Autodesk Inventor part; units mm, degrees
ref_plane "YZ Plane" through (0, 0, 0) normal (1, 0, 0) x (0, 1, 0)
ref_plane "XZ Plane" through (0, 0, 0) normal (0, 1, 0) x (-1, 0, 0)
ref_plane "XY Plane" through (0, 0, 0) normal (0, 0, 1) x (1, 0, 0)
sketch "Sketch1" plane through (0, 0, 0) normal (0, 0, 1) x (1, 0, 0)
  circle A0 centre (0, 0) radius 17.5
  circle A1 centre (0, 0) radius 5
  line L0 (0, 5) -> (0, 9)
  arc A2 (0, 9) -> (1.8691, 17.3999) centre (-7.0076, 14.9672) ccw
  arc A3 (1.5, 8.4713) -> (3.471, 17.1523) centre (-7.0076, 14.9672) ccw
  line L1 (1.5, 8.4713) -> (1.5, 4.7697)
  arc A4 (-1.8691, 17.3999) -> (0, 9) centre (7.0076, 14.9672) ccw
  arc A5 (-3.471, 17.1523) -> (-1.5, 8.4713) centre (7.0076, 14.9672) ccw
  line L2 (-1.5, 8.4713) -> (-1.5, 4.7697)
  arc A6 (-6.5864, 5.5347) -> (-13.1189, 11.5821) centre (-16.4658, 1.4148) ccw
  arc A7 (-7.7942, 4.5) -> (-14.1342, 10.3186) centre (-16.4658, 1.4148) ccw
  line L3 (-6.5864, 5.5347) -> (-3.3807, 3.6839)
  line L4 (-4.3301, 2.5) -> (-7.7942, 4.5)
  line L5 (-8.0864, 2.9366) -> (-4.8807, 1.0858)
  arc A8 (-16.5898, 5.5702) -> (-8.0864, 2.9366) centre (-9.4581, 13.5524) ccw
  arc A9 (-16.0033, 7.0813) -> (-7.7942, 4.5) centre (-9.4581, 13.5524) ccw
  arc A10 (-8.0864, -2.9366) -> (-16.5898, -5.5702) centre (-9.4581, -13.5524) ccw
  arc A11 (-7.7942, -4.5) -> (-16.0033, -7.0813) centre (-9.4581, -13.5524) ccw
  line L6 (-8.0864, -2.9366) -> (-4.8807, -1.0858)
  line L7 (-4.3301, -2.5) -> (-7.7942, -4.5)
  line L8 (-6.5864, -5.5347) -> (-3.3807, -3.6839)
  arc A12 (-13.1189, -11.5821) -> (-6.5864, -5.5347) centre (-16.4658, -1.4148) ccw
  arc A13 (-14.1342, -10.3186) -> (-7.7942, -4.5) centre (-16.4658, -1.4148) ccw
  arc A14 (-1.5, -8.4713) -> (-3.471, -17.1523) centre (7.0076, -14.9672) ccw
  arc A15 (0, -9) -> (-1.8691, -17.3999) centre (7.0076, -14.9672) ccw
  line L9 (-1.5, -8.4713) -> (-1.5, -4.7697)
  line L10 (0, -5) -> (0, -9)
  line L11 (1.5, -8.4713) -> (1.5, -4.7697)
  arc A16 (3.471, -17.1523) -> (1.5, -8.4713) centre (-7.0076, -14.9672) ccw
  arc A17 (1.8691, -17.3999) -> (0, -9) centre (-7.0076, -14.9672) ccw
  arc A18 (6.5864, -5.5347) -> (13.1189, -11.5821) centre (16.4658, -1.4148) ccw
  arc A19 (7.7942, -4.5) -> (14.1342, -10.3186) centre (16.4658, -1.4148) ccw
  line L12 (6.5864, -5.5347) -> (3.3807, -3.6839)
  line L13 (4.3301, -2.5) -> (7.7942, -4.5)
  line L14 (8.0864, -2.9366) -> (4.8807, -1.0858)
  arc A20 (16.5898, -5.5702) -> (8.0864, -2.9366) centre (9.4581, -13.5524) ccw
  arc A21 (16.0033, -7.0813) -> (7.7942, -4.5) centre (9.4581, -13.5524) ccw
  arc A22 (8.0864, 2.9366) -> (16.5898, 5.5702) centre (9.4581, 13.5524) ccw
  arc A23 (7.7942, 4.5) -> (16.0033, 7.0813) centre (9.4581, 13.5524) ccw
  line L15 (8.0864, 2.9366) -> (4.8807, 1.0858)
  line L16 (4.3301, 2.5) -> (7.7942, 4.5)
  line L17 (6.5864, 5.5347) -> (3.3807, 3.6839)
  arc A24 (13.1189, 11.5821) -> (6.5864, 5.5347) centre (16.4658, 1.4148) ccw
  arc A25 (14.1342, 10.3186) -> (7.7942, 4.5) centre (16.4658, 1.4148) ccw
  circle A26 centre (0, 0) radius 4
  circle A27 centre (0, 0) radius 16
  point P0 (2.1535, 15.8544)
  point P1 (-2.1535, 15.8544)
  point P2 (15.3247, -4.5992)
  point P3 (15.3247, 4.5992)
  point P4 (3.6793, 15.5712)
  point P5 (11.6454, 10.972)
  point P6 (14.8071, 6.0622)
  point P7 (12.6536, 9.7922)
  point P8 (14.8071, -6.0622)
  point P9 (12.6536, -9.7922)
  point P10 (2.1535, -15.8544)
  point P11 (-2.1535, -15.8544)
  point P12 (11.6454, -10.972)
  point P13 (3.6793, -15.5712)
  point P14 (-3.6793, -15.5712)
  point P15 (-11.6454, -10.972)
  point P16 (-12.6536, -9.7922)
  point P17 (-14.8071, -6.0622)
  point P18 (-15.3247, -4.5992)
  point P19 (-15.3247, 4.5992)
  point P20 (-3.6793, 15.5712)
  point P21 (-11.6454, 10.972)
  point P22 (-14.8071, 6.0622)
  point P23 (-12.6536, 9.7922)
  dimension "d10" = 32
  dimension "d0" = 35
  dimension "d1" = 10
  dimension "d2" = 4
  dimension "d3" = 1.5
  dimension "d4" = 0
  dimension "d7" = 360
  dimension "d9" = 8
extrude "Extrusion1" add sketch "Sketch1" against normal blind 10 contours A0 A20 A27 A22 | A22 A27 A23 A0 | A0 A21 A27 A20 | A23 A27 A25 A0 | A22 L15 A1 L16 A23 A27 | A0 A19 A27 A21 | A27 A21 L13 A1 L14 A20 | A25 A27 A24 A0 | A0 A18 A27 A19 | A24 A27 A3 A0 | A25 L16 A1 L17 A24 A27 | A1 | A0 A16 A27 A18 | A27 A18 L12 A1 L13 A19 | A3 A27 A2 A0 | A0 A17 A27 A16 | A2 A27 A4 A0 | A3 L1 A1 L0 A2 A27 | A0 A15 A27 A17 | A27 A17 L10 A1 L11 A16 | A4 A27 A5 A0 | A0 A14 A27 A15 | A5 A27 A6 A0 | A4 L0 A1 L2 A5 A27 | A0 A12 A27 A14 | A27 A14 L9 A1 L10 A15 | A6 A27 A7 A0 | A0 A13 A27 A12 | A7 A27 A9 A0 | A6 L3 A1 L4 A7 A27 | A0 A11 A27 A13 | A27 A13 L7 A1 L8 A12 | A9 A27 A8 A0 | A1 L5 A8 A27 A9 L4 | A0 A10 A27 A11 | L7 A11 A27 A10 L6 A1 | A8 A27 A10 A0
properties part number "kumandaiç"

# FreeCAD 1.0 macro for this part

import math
import FreeCAD as App
import Part
import Sketcher
from FreeCAD import Vector
Q = App.Units.Quantity

doc = App.newDocument("Part")
params = doc.addObject("Spreadsheet::Sheet", "Params")
for row, (alias, value) in enumerate([
    ("sketch1_diameter", "35 mm"),
    ("sketch1_diameter2", "8 mm"),
    ("sketch1_radius", "5 mm"),
    ("sketch1_radius2", "16 mm"),
    ("pad1_length", "10 mm"),
], start=1):
    params.set(f"A{row}", alias)
    params.set(f"B{row}", "=" + value)
    params.setAlias(f"B{row}", alias)

body = doc.addObject("PartDesign::Body", "Body")

sketch1 = body.newObject("Sketcher::SketchObject", "Sketch")
sketch1.AttachmentSupport = (doc.getObject("XY_Plane"), [""])
sketch1.MapMode = "FlatFace"
sketch1.addGeometry(Part.Circle(Vector(0, 0, 0), Vector(0, 0, 1), 17.5), False)
sketch1.addGeometry(Part.ArcOfCircle(Part.Circle(Vector(9.4581, -13.5524, 0), Vector(0, 0, 1), 10.704049), math.radians(56.764936), math.radians(97.362569)), False)
sketch1.addGeometry(Part.LineSegment(Vector(8.0864, -2.9366, 0), Vector(4.8807, -1.0858, 0)), False)
sketch1.addGeometry(Part.ArcOfCircle(Part.Circle(Vector(0, 0, 0), Vector(0, 0, 1), 5), math.radians(-12.542231), math.radians(12.542231)), False)
sketch1.addGeometry(Part.LineSegment(Vector(4.8807, 1.0858, 0), Vector(8.0864, 2.9366, 0)), False)
sketch1.addGeometry(Part.ArcOfCircle(Part.Circle(Vector(9.4581, 13.5524, 0), Vector(0, 0, 1), 10.704054), math.radians(-97.362569), math.radians(-56.764941)), False)
sketch1.addGeometry(Part.ArcOfCircle(Part.Circle(Vector(0, 0, 0), Vector(0, 0, 1), 16), math.radians(-16.705439), math.radians(16.705428)), False)
sketch1.addGeometry(Part.ArcOfCircle(Part.Circle(Vector(0, 0, 0), Vector(0, 0, 1), 16), math.radians(-37.735278), math.radians(-22.264772)), False)
sketch1.addGeometry(Part.ArcOfCircle(Part.Circle(Vector(16.4658, -1.4148, 0), Vector(0, 0, 1), 9.204081), math.radians(-160.415352), math.radians(-114.468491)), False)
sketch1.addGeometry(Part.ArcOfCircle(Part.Circle(Vector(9.4581, -13.5524, 0), Vector(0, 0, 1), 9.204063), math.radians(54.4682), math.radians(100.415146)), False)
sketch1.addGeometry(Part.ArcOfCircle(Part.Circle(Vector(9.4581, 13.5524, 0), Vector(0, 0, 1), 9.204049), math.radians(-100.415146), math.radians(-54.468188)), False)
sketch1.addGeometry(Part.ArcOfCircle(Part.Circle(Vector(16.4658, 1.4148, 0), Vector(0, 0, 1), 9.204022), math.radians(114.468441), math.radians(160.415352)), False)
sketch1.addGeometry(Part.ArcOfCircle(Part.Circle(Vector(0, 0, 0), Vector(0, 0, 1), 16), math.radians(22.264803), math.radians(37.735153)), False)
sketch1.addGeometry(Part.ArcOfCircle(Part.Circle(Vector(16.4658, -1.4148, 0), Vector(0, 0, 1), 10.704024), math.radians(-157.362924), math.radians(-116.765165)), False)
sketch1.addGeometry(Part.ArcOfCircle(Part.Circle(Vector(0, 0, 0), Vector(0, 0, 1), 16), math.radians(-76.705325), math.radians(-43.294536)), False)
sketch1.addGeometry(Part.ArcOfCircle(Part.Circle(Vector(-7.0076, -14.9672, 0), Vector(0, 0, 1), 10.704005), math.radians(-3.234796), math.radians(37.363212)), False)
sketch1.addGeometry(Part.LineSegment(Vector(1.5, -8.4713, 0), Vector(1.5, -4.7697, 0)), False)
sketch1.addGeometry(Part.ArcOfCircle(Part.Circle(Vector(0, 0, 0), Vector(0, 0, 1), 5), math.radians(-72.542411), math.radians(-47.457524)), False)
sketch1.addGeometry(Part.LineSegment(Vector(3.3807, -3.6839, 0), Vector(6.5864, -5.5347, 0)), False)
sketch1.addGeometry(Part.Circle(Vector(0, 0, 0), Vector(0, 0, 1), 4), False)
sketch1.addGeometry(Part.ArcOfCircle(Part.Circle(Vector(0, 0, 0), Vector(0, 0, 1), 5), math.radians(-132.542476), math.radians(-107.457589)), False)
sketch1.addGeometry(Part.LineSegment(Vector(-1.5, -4.7697, 0), Vector(-1.5, -8.4713, 0)), False)
sketch1.addGeometry(Part.ArcOfCircle(Part.Circle(Vector(7.0076, -14.9672, 0), Vector(0, 0, 1), 10.704017), math.radians(142.636788), math.radians(183.234786)), False)
sketch1.addGeometry(Part.ArcOfCircle(Part.Circle(Vector(0, 0, 0), Vector(0, 0, 1), 16), math.radians(-136.705503), math.radians(-103.2947)), False)
sketch1.addGeometry(Part.ArcOfCircle(Part.Circle(Vector(-16.4658, -1.4148, 0), Vector(0, 0, 1), 10.704005), math.radians(-63.234852), math.radians(-22.637076)), False)
sketch1.addGeometry(Part.LineSegment(Vector(-6.5864, -5.5347, 0), Vector(-3.3807, -3.6839, 0)), False)
sketch1.addGeometry(Part.ArcOfCircle(Part.Circle(Vector(0, 0, 0), Vector(0, 0, 1), 5), math.radians(167.457769), math.radians(192.542231)), False)
sketch1.addGeometry(Part.LineSegment(Vector(-4.8807, -1.0858, 0), Vector(-8.0864, -2.9366, 0)), False)
sketch1.addGeometry(Part.ArcOfCircle(Part.Circle(Vector(-9.4581, -13.5524, 0), Vector(0, 0, 1), 10.704054), math.radians(82.637431), math.radians(123.235059)), False)
sketch1.addGeometry(Part.ArcOfCircle(Part.Circle(Vector(0, 0, 0), Vector(0, 0, 1), 16), math.radians(163.294561), math.radians(196.705428)), False)
sketch1.addGeometry(Part.ArcOfCircle(Part.Circle(Vector(-9.4581, 13.5524, 0), Vector(0, 0, 1), 10.704049), math.radians(-123.235064), math.radians(-82.637431)), False)
sketch1.addGeometry(Part.LineSegment(Vector(-8.0864, 2.9366, 0), Vector(-4.8807, 1.0858, 0)), False)
sketch1.addGeometry(Part.ArcOfCircle(Part.Circle(Vector(0, 0, 0), Vector(0, 0, 1), 5), math.radians(107.457589), math.radians(132.542476)), False)
sketch1.addGeometry(Part.LineSegment(Vector(-3.3807, 3.6839, 0), Vector(-6.5864, 5.5347, 0)), False)
sketch1.addGeometry(Part.ArcOfCircle(Part.Circle(Vector(-16.4658, 1.4148, 0), Vector(0, 0, 1), 10.704024), math.radians(22.637076), math.radians(63.234835)), False)
sketch1.addGeometry(Part.ArcOfCircle(Part.Circle(Vector(0, 0, 0), Vector(0, 0, 1), 16), math.radians(103.294675), math.radians(136.705464)), False)
sketch1.addGeometry(Part.ArcOfCircle(Part.Circle(Vector(7.0076, 14.9672, 0), Vector(0, 0, 1), 10.704005), math.radians(176.765204), math.radians(217.363212)), False)
sketch1.addGeometry(Part.LineSegment(Vector(-1.5, 8.4713, 0), Vector(-1.5, 4.7697, 0)), False)
sketch1.addGeometry(Part.ArcOfCircle(Part.Circle(Vector(0, 0, 0), Vector(0, 0, 1), 5), math.radians(47.457524), math.radians(72.542411)), False)
sketch1.addGeometry(Part.LineSegment(Vector(1.5, 4.7697, 0), Vector(1.5, 8.4713, 0)), False)
sketch1.addGeometry(Part.ArcOfCircle(Part.Circle(Vector(-7.0076, 14.9672, 0), Vector(0, 0, 1), 10.704017), math.radians(-37.363212), math.radians(3.234786)), False)
sketch1.addGeometry(Part.ArcOfCircle(Part.Circle(Vector(0, 0, 0), Vector(0, 0, 1), 16), math.radians(43.294497), math.radians(76.7053)), False)
sketch1.addGeometry(Part.ArcOfCircle(Part.Circle(Vector(16.4658, 1.4148, 0), Vector(0, 0, 1), 10.704005), math.radians(116.765148), math.radians(157.362924)), False)
sketch1.addGeometry(Part.LineSegment(Vector(6.5864, 5.5347, 0), Vector(3.3807, 3.6839, 0)), False)
sketch1.addGeometry(Part.ArcOfCircle(Part.Circle(Vector(-7.0076, -14.9672, 0), Vector(0, 0, 1), 9.204012), math.radians(-5.53153), math.radians(40.415478)), False)
sketch1.addGeometry(Part.ArcOfCircle(Part.Circle(Vector(0, 0, 0), Vector(0, 0, 1), 16), math.radians(-97.735324), math.radians(-82.264687)), False)
sketch1.addGeometry(Part.ArcOfCircle(Part.Circle(Vector(7.0076, -14.9672, 0), Vector(0, 0, 1), 9.204017), math.radians(139.584522), math.radians(185.531525)), False)
sketch1.addGeometry(Part.ArcOfCircle(Part.Circle(Vector(-16.4658, -1.4148, 0), Vector(0, 0, 1), 9.204022), math.radians(-65.531559), math.radians(-19.584648)), False)
sketch1.addGeometry(Part.ArcOfCircle(Part.Circle(Vector(0, 0, 0), Vector(0, 0, 1), 16), math.radians(-157.735197), math.radians(-142.264847)), False)
sketch1.addGeometry(Part.ArcOfCircle(Part.Circle(Vector(-9.4581, -13.5524, 0), Vector(0, 0, 1), 9.204049), math.radians(79.584854), math.radians(125.531812)), False)
sketch1.addGeometry(Part.ArcOfCircle(Part.Circle(Vector(-9.4581, 13.5524, 0), Vector(0, 0, 1), 9.204063), math.radians(-125.5318), math.radians(-79.584854)), False)
sketch1.addGeometry(Part.ArcOfCircle(Part.Circle(Vector(0, 0, 0), Vector(0, 0, 1), 16), math.radians(142.264722), math.radians(157.735228)), False)
sketch1.addGeometry(Part.ArcOfCircle(Part.Circle(Vector(-16.4658, 1.4148, 0), Vector(0, 0, 1), 9.204081), math.radians(19.584648), math.radians(65.531509)), False)
sketch1.addGeometry(Part.ArcOfCircle(Part.Circle(Vector(7.0076, 14.9672, 0), Vector(0, 0, 1), 9.204012), math.radians(174.46847), math.radians(220.415478)), False)
sketch1.addGeometry(Part.ArcOfCircle(Part.Circle(Vector(0, 0, 0), Vector(0, 0, 1), 16), math.radians(82.264676), math.radians(97.735313)), False)
sketch1.addGeometry(Part.ArcOfCircle(Part.Circle(Vector(-7.0076, 14.9672, 0), Vector(0, 0, 1), 9.204017), math.radians(-40.415478), math.radians(5.531525)), False)
sketch1.addConstraint(Sketcher.Constraint("Coincident", 1, 2, 2, 1))
sketch1.addConstraint(Sketcher.Constraint("Coincident", 2, 2, 3, 1))
sketch1.addConstraint(Sketcher.Constraint("Coincident", 3, 2, 4, 1))
sketch1.addConstraint(Sketcher.Constraint("Coincident", 4, 2, 5, 1))
sketch1.addConstraint(Sketcher.Constraint("Coincident", 5, 2, 6, 2))
sketch1.addConstraint(Sketcher.Constraint("Coincident", 6, 1, 1, 1))
sketch1.addConstraint(Sketcher.Constraint("Coincident", 7, 1, 8, 2))
sketch1.addConstraint(Sketcher.Constraint("Coincident", 8, 1, 9, 2))
sketch1.addConstraint(Sketcher.Constraint("Coincident", 9, 1, 7, 2))
sketch1.addConstraint(Sketcher.Constraint("Coincident", 10, 1, 11, 2))
sketch1.addConstraint(Sketcher.Constraint("Coincident", 11, 1, 12, 2))
sketch1.addConstraint(Sketcher.Constraint("Coincident", 12, 1, 10, 2))
sketch1.addConstraint(Sketcher.Constraint("Coincident", 13, 2, 14, 2))
sketch1.addConstraint(Sketcher.Constraint("Coincident", 14, 1, 15, 1))
sketch1.addConstraint(Sketcher.Constraint("Coincident", 15, 2, 16, 1))
sketch1.addConstraint(Sketcher.Constraint("Coincident", 16, 2, 17, 1))
sketch1.addConstraint(Sketcher.Constraint("Coincident", 17, 2, 18, 1))
sketch1.addConstraint(Sketcher.Constraint("Coincident", 18, 2, 13, 1))
sketch1.addConstraint(Sketcher.Constraint("Coincident", 20, 2, 21, 1))
sketch1.addConstraint(Sketcher.Constraint("Coincident", 21, 2, 22, 1))
sketch1.addConstraint(Sketcher.Constraint("Coincident", 22, 2, 23, 2))
sketch1.addConstraint(Sketcher.Constraint("Coincident", 23, 1, 24, 1))
sketch1.addConstraint(Sketcher.Constraint("Coincident", 24, 2, 25, 1))
sketch1.addConstraint(Sketcher.Constraint("Coincident", 25, 2, 20, 1))
sketch1.addConstraint(Sketcher.Constraint("Coincident", 26, 2, 27, 1))
sketch1.addConstraint(Sketcher.Constraint("Coincident", 27, 2, 28, 1))
sketch1.addConstraint(Sketcher.Constraint("Coincident", 28, 2, 29, 2))
sketch1.addConstraint(Sketcher.Constraint("Coincident", 29, 1, 30, 1))
sketch1.addConstraint(Sketcher.Constraint("Coincident", 30, 2, 31, 1))
sketch1.addConstraint(Sketcher.Constraint("Coincident", 31, 2, 26, 1))
sketch1.addConstraint(Sketcher.Constraint("Coincident", 32, 2, 33, 1))
sketch1.addConstraint(Sketcher.Constraint("Coincident", 33, 2, 34, 1))
sketch1.addConstraint(Sketcher.Constraint("Coincident", 34, 2, 35, 2))
sketch1.addConstraint(Sketcher.Constraint("Coincident", 35, 1, 36, 1))
sketch1.addConstraint(Sketcher.Constraint("Coincident", 36, 2, 37, 1))
sketch1.addConstraint(Sketcher.Constraint("Coincident", 37, 2, 32, 1))
sketch1.addConstraint(Sketcher.Constraint("Coincident", 38, 2, 39, 1))
sketch1.addConstraint(Sketcher.Constraint("Coincident", 39, 2, 40, 1))
sketch1.addConstraint(Sketcher.Constraint("Coincident", 40, 2, 41, 2))
sketch1.addConstraint(Sketcher.Constraint("Coincident", 41, 1, 42, 1))
sketch1.addConstraint(Sketcher.Constraint("Coincident", 42, 2, 43, 1))
sketch1.addConstraint(Sketcher.Constraint("Coincident", 43, 2, 38, 1))
sketch1.addConstraint(Sketcher.Constraint("Coincident", 44, 1, 45, 2))
sketch1.addConstraint(Sketcher.Constraint("Coincident", 45, 1, 46, 2))
sketch1.addConstraint(Sketcher.Constraint("Coincident", 46, 1, 44, 2))
sketch1.addConstraint(Sketcher.Constraint("Coincident", 47, 1, 48, 2))
sketch1.addConstraint(Sketcher.Constraint("Coincident", 48, 1, 49, 2))
sketch1.addConstraint(Sketcher.Constraint("Coincident", 49, 1, 47, 2))
sketch1.addConstraint(Sketcher.Constraint("Coincident", 50, 1, 51, 2))
sketch1.addConstraint(Sketcher.Constraint("Coincident", 51, 1, 52, 2))
sketch1.addConstraint(Sketcher.Constraint("Coincident", 52, 1, 50, 2))
sketch1.addConstraint(Sketcher.Constraint("Coincident", 53, 1, 54, 2))
sketch1.addConstraint(Sketcher.Constraint("Coincident", 54, 1, 55, 2))
sketch1.addConstraint(Sketcher.Constraint("Coincident", 55, 1, 53, 2))
sketch1.addConstraint(Sketcher.Constraint("Vertical", 16))
sketch1.addConstraint(Sketcher.Constraint("Vertical", 21))
sketch1.addConstraint(Sketcher.Constraint("Vertical", 37))
sketch1.addConstraint(Sketcher.Constraint("Vertical", 39))
sketch1.addConstraint(Sketcher.Constraint("Coincident", 0, 3, -1, 1))
sketch1.addConstraint(Sketcher.Constraint("Coincident", 3, 3, -1, 1))
sketch1.addConstraint(Sketcher.Constraint("Coincident", 6, 3, -1, 1))
sketch1.addConstraint(Sketcher.Constraint("Coincident", 7, 3, -1, 1))
sketch1.addConstraint(Sketcher.Constraint("Coincident", 12, 3, -1, 1))
sketch1.addConstraint(Sketcher.Constraint("Coincident", 14, 3, -1, 1))
sketch1.addConstraint(Sketcher.Constraint("Coincident", 17, 3, -1, 1))
sketch1.addConstraint(Sketcher.Constraint("Coincident", 19, 3, -1, 1))
sketch1.addConstraint(Sketcher.Constraint("Coincident", 20, 3, -1, 1))
sketch1.addConstraint(Sketcher.Constraint("Coincident", 23, 3, -1, 1))
sketch1.addConstraint(Sketcher.Constraint("Coincident", 26, 3, -1, 1))
sketch1.addConstraint(Sketcher.Constraint("Coincident", 29, 3, -1, 1))
sketch1.addConstraint(Sketcher.Constraint("Coincident", 32, 3, -1, 1))
sketch1.addConstraint(Sketcher.Constraint("Coincident", 35, 3, -1, 1))
sketch1.addConstraint(Sketcher.Constraint("Coincident", 38, 3, -1, 1))
sketch1.addConstraint(Sketcher.Constraint("Coincident", 41, 3, -1, 1))
sketch1.addConstraint(Sketcher.Constraint("Coincident", 45, 3, -1, 1))
sketch1.addConstraint(Sketcher.Constraint("Coincident", 48, 3, -1, 1))
sketch1.addConstraint(Sketcher.Constraint("Coincident", 51, 3, -1, 1))
sketch1.addConstraint(Sketcher.Constraint("Coincident", 54, 3, -1, 1))
sketch1.addConstraint(Sketcher.Constraint("Coincident", 9, 3, 1, 3))
sketch1.addConstraint(Sketcher.Constraint("Coincident", 10, 3, 5, 3))
sketch1.addConstraint(Sketcher.Constraint("Coincident", 13, 3, 8, 3))
sketch1.addConstraint(Sketcher.Constraint("Coincident", 42, 3, 11, 3))
sketch1.addConstraint(Sketcher.Constraint("Coincident", 44, 3, 15, 3))
sketch1.addConstraint(Sketcher.Constraint("Coincident", 46, 3, 22, 3))
sketch1.addConstraint(Sketcher.Constraint("Coincident", 47, 3, 24, 3))
sketch1.addConstraint(Sketcher.Constraint("Coincident", 49, 3, 28, 3))
sketch1.addConstraint(Sketcher.Constraint("Coincident", 50, 3, 30, 3))
sketch1.addConstraint(Sketcher.Constraint("Coincident", 52, 3, 34, 3))
sketch1.addConstraint(Sketcher.Constraint("Coincident", 53, 3, 36, 3))
sketch1.addConstraint(Sketcher.Constraint("Coincident", 55, 3, 40, 3))
sketch1.addConstraint(Sketcher.Constraint("Equal", 1, 5))
sketch1.addConstraint(Sketcher.Constraint("Equal", 6, 7))
sketch1.addConstraint(Sketcher.Constraint("Equal", 8, 9))
sketch1.addConstraint(Sketcher.Constraint("Equal", 9, 10))
sketch1.addConstraint(Sketcher.Constraint("Equal", 10, 11))
sketch1.addConstraint(Sketcher.Constraint("Equal", 7, 12))
sketch1.addConstraint(Sketcher.Constraint("Equal", 5, 13))
sketch1.addConstraint(Sketcher.Constraint("Equal", 12, 14))
sketch1.addConstraint(Sketcher.Constraint("Equal", 13, 15))
sketch1.addConstraint(Sketcher.Constraint("Equal", 3, 17))
sketch1.addConstraint(Sketcher.Constraint("Equal", 17, 20))
sketch1.addConstraint(Sketcher.Constraint("Equal", 15, 22))
sketch1.addConstraint(Sketcher.Constraint("Equal", 14, 23))
sketch1.addConstraint(Sketcher.Constraint("Equal", 22, 24))
sketch1.addConstraint(Sketcher.Constraint("Equal", 20, 26))
sketch1.addConstraint(Sketcher.Constraint("Equal", 24, 28))
sketch1.addConstraint(Sketcher.Constraint("Equal", 23, 29))
sketch1.addConstraint(Sketcher.Constraint("Equal", 28, 30))
sketch1.addConstraint(Sketcher.Constraint("Equal", 26, 32))
sketch1.addConstraint(Sketcher.Constraint("Equal", 30, 34))
sketch1.addConstraint(Sketcher.Constraint("Equal", 29, 35))
sketch1.addConstraint(Sketcher.Constraint("Equal", 34, 36))
sketch1.addConstraint(Sketcher.Constraint("Equal", 32, 38))
sketch1.addConstraint(Sketcher.Constraint("Equal", 36, 40))
sketch1.addConstraint(Sketcher.Constraint("Equal", 35, 41))
sketch1.addConstraint(Sketcher.Constraint("Equal", 40, 42))
sketch1.addConstraint(Sketcher.Constraint("Equal", 11, 44))
sketch1.addConstraint(Sketcher.Constraint("Equal", 41, 45))
sketch1.addConstraint(Sketcher.Constraint("Equal", 44, 46))
sketch1.addConstraint(Sketcher.Constraint("Equal", 46, 47))
sketch1.addConstraint(Sketcher.Constraint("Equal", 45, 48))
sketch1.addConstraint(Sketcher.Constraint("Equal", 47, 49))
sketch1.addConstraint(Sketcher.Constraint("Equal", 49, 50))
sketch1.addConstraint(Sketcher.Constraint("Equal", 48, 51))
sketch1.addConstraint(Sketcher.Constraint("Equal", 50, 52))
sketch1.addConstraint(Sketcher.Constraint("Equal", 52, 53))
sketch1.addConstraint(Sketcher.Constraint("Equal", 51, 54))
sketch1.addConstraint(Sketcher.Constraint("Equal", 53, 55))
sketch1.addConstraint(Sketcher.Constraint("Symmetric", 11, 3, 24, 3, -1, 1))
sketch1.addConstraint(Sketcher.Constraint("Symmetric", 5, 3, 28, 3, -1, 1))
sketch1.addConstraint(Sketcher.Constraint("Symmetric", 1, 3, 30, 3, -1, 1))
sketch1.addConstraint(Sketcher.Constraint("Symmetric", 8, 3, 34, 3, -1, 1))
sketch1.addConstraint(Sketcher.Constraint("Symmetric", 15, 3, 36, 3, -1, 1))
sketch1.addConstraint(Sketcher.Constraint("Symmetric", 22, 3, 40, 3, -1, 1))
sketch1.addConstraint(Sketcher.Constraint("Symmetric", 15, 3, 22, 3, -2))
sketch1.addConstraint(Sketcher.Constraint("Symmetric", 8, 3, 24, 3, -2))
sketch1.addConstraint(Sketcher.Constraint("Symmetric", 1, 3, 28, 3, -2))
sketch1.addConstraint(Sketcher.Constraint("Parallel", 2, 18))
sketch1.addConstraint(Sketcher.Constraint("Parallel", 4, 25))
sketch1.addConstraint(Sketcher.Constraint("Parallel", 25, 27))
sketch1.addConstraint(Sketcher.Constraint("Parallel", 18, 31))
sketch1.addConstraint(Sketcher.Constraint("Parallel", 31, 33))
sketch1.addConstraint(Sketcher.Constraint("Parallel", 27, 43))
sketch1.addConstraint(Sketcher.Constraint("Horizontal", 16, 2, 20, 2))
sketch1.addConstraint(Sketcher.Constraint("Horizontal", 18, 2, 24, 2))
sketch1.addConstraint(Sketcher.Constraint("Horizontal", 17, 2, 25, 2))
sketch1.addConstraint(Sketcher.Constraint("Horizontal", 2, 2, 26, 2))
sketch1.addConstraint(Sketcher.Constraint("Horizontal", 4, 2, 30, 2))
sketch1.addConstraint(Sketcher.Constraint("Horizontal", 37, 2, 38, 2))
sketch1.addConstraint(Sketcher.Constraint("Horizontal", 33, 2, 42, 2))
sketch1.addConstraint(Sketcher.Constraint("Vertical", 2, 2, 3, 2))
sketch1.addConstraint(Sketcher.Constraint("Vertical", 25, 2, 32, 2))
sketch1.addConstraint(Sketcher.Constraint("Vertical", 21, 2, 36, 2))
sketch1.addConstraint(Sketcher.Constraint("Equal", 4, 18))
sketch1.addConstraint(Sketcher.Constraint("Diameter", 0, Q("35 mm")))
sketch1.addConstraint(Sketcher.Constraint("Diameter", 19, Q("8 mm")))
sketch1.addConstraint(Sketcher.Constraint("Radius", 3, Q("5 mm")))
sketch1.addConstraint(Sketcher.Constraint("Radius", 6, Q("16 mm")))
sketch1.addConstraint(Sketcher.Constraint("DistanceX", -1, 1, 15, 2, Q("1.5 mm")))
sketch1.addConstraint(Sketcher.Constraint("Angle", 2, Q("150.0002 deg")))
sketch1.addConstraint(Sketcher.Constraint("DistanceY", 46, 1, -1, 1, Q("9 mm")))
sketch1.addConstraint(Sketcher.Constraint("Radius", 1, Q("10.704 mm")))
sketch1.addConstraint(Sketcher.Constraint("Radius", 8, Q("9.204 mm")))
sketch1.addConstraint(Sketcher.Constraint("DistanceY", 8, 1, -1, 1, Q("4.5 mm")))
sketch1.addConstraint(Sketcher.Constraint("DistanceY", 16, 1, 16, 2, Q("3.7016 mm")))
sketch1.addConstraint(Sketcher.Constraint("DistanceX", -1, 1, 1, 3, Q("9.458 mm")))
sketch1.addConstraint(Sketcher.Constraint("DistanceX", -1, 1, 9, 1, Q("14.807 mm")))
sketch1.addConstraint(Sketcher.Constraint("DistanceY", 13, 2, -1, 1, Q("10.972 mm")))
sketch1.addConstraint(Sketcher.Constraint("DistanceY", 17, 2, -1, 1, Q("3.684 mm")))
sketch1.setExpression("Constraints[154]", "Params.sketch1_diameter")
sketch1.setExpression("Constraints[155]", "Params.sketch1_diameter2")
sketch1.setExpression("Constraints[156]", "Params.sketch1_radius")
sketch1.setExpression("Constraints[157]", "Params.sketch1_radius2")
pad1 = body.newObject("PartDesign::Pad", "Pad")
pad1.Profile = sketch1
pad1.setExpression("Length", "Params.pad1_length")
pad1.Reversed = True

doc.recompute()
